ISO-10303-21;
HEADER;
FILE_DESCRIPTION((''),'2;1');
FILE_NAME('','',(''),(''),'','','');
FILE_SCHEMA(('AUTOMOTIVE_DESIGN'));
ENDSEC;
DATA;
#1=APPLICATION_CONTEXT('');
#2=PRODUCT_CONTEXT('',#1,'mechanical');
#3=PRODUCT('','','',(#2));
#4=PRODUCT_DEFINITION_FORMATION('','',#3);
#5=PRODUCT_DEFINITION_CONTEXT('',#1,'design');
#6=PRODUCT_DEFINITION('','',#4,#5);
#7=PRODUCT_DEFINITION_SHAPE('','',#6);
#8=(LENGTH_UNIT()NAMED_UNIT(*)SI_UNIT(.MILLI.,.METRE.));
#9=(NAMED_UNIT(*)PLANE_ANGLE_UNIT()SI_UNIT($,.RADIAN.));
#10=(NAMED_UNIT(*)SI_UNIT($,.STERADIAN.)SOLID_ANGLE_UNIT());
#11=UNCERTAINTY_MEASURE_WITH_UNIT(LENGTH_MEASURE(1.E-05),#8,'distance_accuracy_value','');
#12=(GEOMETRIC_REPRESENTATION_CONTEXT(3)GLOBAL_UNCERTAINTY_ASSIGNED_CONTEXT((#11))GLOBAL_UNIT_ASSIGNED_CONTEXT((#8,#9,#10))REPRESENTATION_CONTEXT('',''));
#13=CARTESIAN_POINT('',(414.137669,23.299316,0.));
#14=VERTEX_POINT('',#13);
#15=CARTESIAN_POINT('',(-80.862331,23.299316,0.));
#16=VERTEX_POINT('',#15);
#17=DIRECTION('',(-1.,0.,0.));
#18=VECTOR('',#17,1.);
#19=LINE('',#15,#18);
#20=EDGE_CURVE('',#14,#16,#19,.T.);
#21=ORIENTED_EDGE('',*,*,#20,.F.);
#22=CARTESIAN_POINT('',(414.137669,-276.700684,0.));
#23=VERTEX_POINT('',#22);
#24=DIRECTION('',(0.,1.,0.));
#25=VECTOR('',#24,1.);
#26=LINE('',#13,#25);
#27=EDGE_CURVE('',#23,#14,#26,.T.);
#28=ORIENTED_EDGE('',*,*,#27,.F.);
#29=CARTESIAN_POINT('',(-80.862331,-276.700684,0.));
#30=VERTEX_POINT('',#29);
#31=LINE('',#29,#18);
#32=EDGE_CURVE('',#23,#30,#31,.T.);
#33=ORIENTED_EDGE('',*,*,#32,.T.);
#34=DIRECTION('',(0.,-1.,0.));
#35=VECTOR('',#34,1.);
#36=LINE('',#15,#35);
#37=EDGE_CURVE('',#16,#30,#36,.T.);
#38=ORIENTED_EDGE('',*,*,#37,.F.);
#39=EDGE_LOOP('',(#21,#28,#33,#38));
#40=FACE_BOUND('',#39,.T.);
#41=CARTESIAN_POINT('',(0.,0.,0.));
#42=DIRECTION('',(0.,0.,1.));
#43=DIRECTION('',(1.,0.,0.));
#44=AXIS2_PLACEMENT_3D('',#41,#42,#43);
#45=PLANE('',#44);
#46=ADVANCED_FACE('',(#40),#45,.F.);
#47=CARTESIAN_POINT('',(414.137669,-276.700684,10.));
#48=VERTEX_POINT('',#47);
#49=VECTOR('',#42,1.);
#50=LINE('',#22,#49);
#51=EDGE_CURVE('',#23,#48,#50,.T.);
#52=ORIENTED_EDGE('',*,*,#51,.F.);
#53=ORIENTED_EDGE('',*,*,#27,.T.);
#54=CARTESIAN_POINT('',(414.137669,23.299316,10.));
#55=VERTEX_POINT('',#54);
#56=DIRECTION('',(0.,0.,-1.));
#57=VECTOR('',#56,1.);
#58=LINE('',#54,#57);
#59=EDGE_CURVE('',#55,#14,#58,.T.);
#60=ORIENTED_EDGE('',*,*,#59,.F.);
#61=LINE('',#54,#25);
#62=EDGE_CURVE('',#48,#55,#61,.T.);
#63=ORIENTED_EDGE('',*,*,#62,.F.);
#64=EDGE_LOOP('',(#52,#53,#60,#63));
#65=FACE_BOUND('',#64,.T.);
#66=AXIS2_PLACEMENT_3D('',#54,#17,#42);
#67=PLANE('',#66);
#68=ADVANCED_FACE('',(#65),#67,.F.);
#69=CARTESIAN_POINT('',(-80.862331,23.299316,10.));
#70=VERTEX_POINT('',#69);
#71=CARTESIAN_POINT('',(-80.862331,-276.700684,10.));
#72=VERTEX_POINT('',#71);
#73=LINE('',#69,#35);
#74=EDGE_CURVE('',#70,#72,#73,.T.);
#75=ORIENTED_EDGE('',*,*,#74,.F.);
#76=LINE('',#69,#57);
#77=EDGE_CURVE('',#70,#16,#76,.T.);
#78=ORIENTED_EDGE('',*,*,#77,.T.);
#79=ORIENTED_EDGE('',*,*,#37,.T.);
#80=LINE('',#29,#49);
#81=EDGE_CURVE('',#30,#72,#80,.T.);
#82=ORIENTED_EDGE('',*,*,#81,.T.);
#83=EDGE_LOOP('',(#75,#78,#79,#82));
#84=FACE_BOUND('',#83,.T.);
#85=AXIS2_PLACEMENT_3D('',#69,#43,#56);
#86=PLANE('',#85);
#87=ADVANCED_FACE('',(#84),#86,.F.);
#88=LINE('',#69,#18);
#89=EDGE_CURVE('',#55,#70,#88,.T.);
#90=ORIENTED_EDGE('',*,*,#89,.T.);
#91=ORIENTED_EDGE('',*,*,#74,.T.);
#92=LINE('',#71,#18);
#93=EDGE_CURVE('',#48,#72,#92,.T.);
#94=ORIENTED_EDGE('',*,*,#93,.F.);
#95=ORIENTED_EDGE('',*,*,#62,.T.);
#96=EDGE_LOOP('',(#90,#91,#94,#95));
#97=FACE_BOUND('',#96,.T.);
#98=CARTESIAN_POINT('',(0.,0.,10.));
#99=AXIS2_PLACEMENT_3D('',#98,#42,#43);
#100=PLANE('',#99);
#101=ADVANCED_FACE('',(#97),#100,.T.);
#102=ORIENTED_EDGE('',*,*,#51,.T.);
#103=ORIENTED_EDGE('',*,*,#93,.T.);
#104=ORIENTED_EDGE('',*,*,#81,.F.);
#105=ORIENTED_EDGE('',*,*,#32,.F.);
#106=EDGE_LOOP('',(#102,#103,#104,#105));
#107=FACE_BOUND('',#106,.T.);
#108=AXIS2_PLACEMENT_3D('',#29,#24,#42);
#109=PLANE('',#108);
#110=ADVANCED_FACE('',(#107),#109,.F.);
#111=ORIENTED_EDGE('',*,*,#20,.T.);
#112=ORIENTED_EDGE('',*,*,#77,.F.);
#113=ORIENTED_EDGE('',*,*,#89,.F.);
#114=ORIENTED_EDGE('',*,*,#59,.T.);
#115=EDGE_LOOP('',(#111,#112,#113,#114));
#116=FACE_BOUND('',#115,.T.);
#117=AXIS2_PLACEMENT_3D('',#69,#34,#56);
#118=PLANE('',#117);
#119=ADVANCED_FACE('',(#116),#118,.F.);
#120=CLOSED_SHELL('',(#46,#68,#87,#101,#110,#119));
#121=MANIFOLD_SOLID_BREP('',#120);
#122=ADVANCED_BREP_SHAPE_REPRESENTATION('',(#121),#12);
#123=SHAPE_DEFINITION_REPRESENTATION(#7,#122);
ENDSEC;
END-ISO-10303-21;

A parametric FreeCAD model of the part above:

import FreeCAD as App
import Part
import Sketcher
from FreeCAD import Vector
Q = App.Units.Quantity


def add_polygon(sketch, points):
    """Adds a closed chain of lines whose ends are joined by coincident constraints."""
    first, n = sketch.GeometryCount, len(points)
    for a, b in zip(points, points[1:] + points[:1]):
        sketch.addGeometry(Part.LineSegment(App.Vector(*a, 0), App.Vector(*b, 0)), False)
    for i in range(n):
        sketch.addConstraint(Sketcher.Constraint("Coincident", first + i, 2, first + (i + 1) % n, 1))

doc = App.newDocument("Part")
body = doc.addObject("PartDesign::Body", "Body")

sketch1 = body.newObject("Sketcher::SketchObject", "Sketch")
sketch1.AttachmentSupport = (doc.getObject("XY_Plane"), [""])
sketch1.MapMode = "FlatFace"
add_polygon(sketch1, [(-80.862331, 23.299316), (-80.862331, -476.700684), (414.137669, -476.700684), (414.137669, 23.299316)])
sketch1.addConstraint([
    Sketcher.Constraint("Vertical", 0),
    Sketcher.Constraint("Horizontal", 1),
    Sketcher.Constraint("Vertical", 2),
    Sketcher.Constraint("Horizontal", 3),
    Sketcher.Constraint("DistanceX", 1, 1, 1, 2, Q("495 mm")),
    Sketcher.Constraint("DistanceY", 0, 2, 0, 1, Q("500 mm")),
    Sketcher.Constraint("DistanceX", 0, 2, -1, 1, Q("80.862331 mm")),
    Sketcher.Constraint("DistanceY", 0, 2, -1, 1, Q("476.700684 mm")),
])
pad1 = body.newObject("PartDesign::Pad", "Pad")
pad1.Profile = sketch1
pad1.Length = 10

sketch2 = body.newObject("Sketcher::SketchObject", "Sketch001")
sketch2.AttachmentSupport = (doc.getObject("XY_Plane"), [""])
sketch2.MapMode = "FlatFace"
sketch2.AttachmentOffset = App.Placement(Vector(0, 0, 10), App.Rotation())
add_polygon(sketch2, [(-80.862331, -276.700684), (-80.862331, -476.700684), (414.137669, -476.700684), (414.137669, -276.700684)])
sketch2.addConstraint([
    Sketcher.Constraint("Vertical", 0),
    Sketcher.Constraint("Horizontal", 1),
    Sketcher.Constraint("Vertical", 2),
    Sketcher.Constraint("Horizontal", 3),
    Sketcher.Constraint("DistanceX", 1, 1, 1, 2, Q("495 mm")),
    Sketcher.Constraint("DistanceY", 0, 2, 0, 1, Q("200 mm")),
    Sketcher.Constraint("DistanceX", 0, 2, -1, 1, Q("80.862331 mm")),
    Sketcher.Constraint("DistanceY", 0, 2, -1, 1, Q("476.700684 mm")),
])
pocket1 = body.newObject("PartDesign::Pocket", "Pocket")
pocket1.Profile = sketch2
pocket1.Length = 10

doc.recompute()
